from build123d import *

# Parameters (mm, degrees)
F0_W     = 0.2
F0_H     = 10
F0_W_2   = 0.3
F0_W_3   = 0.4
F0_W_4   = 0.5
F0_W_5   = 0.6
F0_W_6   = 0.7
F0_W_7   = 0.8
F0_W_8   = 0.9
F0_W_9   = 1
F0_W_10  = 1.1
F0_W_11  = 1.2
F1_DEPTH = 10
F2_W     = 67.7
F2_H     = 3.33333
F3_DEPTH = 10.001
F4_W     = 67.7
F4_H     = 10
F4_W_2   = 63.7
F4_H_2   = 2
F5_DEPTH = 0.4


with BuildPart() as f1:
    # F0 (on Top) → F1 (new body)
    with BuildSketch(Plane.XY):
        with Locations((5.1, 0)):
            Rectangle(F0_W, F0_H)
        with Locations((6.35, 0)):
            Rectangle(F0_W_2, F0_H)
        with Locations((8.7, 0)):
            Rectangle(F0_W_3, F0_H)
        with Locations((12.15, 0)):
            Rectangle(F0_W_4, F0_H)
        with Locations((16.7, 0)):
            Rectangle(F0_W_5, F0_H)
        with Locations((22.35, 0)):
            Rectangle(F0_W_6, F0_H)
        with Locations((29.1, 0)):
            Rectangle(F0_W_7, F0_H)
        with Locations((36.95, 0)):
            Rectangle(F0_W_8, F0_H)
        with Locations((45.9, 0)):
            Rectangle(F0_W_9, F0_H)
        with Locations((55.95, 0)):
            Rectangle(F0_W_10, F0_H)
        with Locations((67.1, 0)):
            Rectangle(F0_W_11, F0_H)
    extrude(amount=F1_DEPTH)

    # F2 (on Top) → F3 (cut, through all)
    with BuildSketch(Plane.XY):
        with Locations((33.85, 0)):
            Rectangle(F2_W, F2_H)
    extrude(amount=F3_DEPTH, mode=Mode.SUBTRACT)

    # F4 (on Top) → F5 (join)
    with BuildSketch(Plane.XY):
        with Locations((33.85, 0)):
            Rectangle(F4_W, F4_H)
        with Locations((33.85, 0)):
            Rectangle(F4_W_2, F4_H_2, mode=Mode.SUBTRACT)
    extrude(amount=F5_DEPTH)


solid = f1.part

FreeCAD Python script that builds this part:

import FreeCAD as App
import Part
import Sketcher

V = App.Vector
Q = App.Units.Quantity


def add_polygon(sketch, points):
    """Adds a closed chain of lines whose ends are joined by coincident constraints."""
    first, n = sketch.GeometryCount, len(points)
    for a, b in zip(points, points[1:] + points[:1]):
        sketch.addGeometry(Part.LineSegment(App.Vector(*a, 0), App.Vector(*b, 0)), False)
    for i in range(n):
        sketch.addConstraint(Sketcher.Constraint("Coincident", first + i, 2, first + (i + 1) % n, 1))

doc = App.newDocument("Part")
body = doc.addObject("PartDesign::Body", "Body")
body.AllowCompound = True

sketch1 = doc.addObject("Sketcher::SketchObject", "Sketch")
body.addObject(sketch1)
sketch1.AttachmentSupport = (doc.XY_Plane, [""])
sketch1.MapMode = "FlatFace"
add_polygon(sketch1, [(5, 5), (5, -5), (5.2, -5), (5.2, 5)])
add_polygon(sketch1, [(6.2, 5), (6.2, -5), (6.5, -5), (6.5, 5)])
add_polygon(sketch1, [(8.5, 5), (8.5, -5), (8.9, -5), (8.9, 5)])
add_polygon(sketch1, [(11.9, 5), (11.9, -5), (12.4, -5), (12.4, 5)])
add_polygon(sketch1, [(16.4, 5), (16.4, -5), (17, -5), (17, 5)])
add_polygon(sketch1, [(22, 5), (22, -5), (22.7, -5), (22.7, 5)])
add_polygon(sketch1, [(28.7, 5), (28.7, -5), (29.5, -5), (29.5, 5)])
add_polygon(sketch1, [(36.5, 5), (36.5, -5), (37.4, -5), (37.4, 5)])
add_polygon(sketch1, [(45.4, 5), (45.4, -5), (46.4, -5), (46.4, 5)])
add_polygon(sketch1, [(55.4, 5), (55.4, -5), (56.5, -5), (56.5, 5)])
add_polygon(sketch1, [(66.5, 5), (66.5, -5), (67.7, -5), (67.7, 5)])
sketch1.addConstraint([
    Sketcher.Constraint("Vertical", 0),
    Sketcher.Constraint("Horizontal", 1),
    Sketcher.Constraint("Vertical", 2),
    Sketcher.Constraint("Horizontal", 3),
    Sketcher.Constraint("Vertical", 4),
    Sketcher.Constraint("Horizontal", 5),
    Sketcher.Constraint("Vertical", 6),
    Sketcher.Constraint("Horizontal", 7),
    Sketcher.Constraint("Vertical", 8),
    Sketcher.Constraint("Horizontal", 9),
    Sketcher.Constraint("Vertical", 10),
    Sketcher.Constraint("Horizontal", 11),
    Sketcher.Constraint("Vertical", 12),
    Sketcher.Constraint("Horizontal", 13),
    Sketcher.Constraint("Vertical", 14),
    Sketcher.Constraint("Horizontal", 15),
    Sketcher.Constraint("Vertical", 16),
    Sketcher.Constraint("Horizontal", 17),
    Sketcher.Constraint("Vertical", 18),
    Sketcher.Constraint("Horizontal", 19),
    Sketcher.Constraint("Vertical", 20),
    Sketcher.Constraint("Horizontal", 21),
    Sketcher.Constraint("Vertical", 22),
    Sketcher.Constraint("Horizontal", 23),
    Sketcher.Constraint("Vertical", 24),
    Sketcher.Constraint("Horizontal", 25),
    Sketcher.Constraint("Vertical", 26),
    Sketcher.Constraint("Horizontal", 27),
    Sketcher.Constraint("Vertical", 28),
    Sketcher.Constraint("Horizontal", 29),
    Sketcher.Constraint("Vertical", 30),
    Sketcher.Constraint("Horizontal", 31),
    Sketcher.Constraint("Vertical", 32),
    Sketcher.Constraint("Horizontal", 33),
    Sketcher.Constraint("Vertical", 34),
    Sketcher.Constraint("Horizontal", 35),
    Sketcher.Constraint("Vertical", 36),
    Sketcher.Constraint("Horizontal", 37),
    Sketcher.Constraint("Vertical", 38),
    Sketcher.Constraint("Horizontal", 39),
    Sketcher.Constraint("Vertical", 40),
    Sketcher.Constraint("Horizontal", 41),
    Sketcher.Constraint("Vertical", 42),
    Sketcher.Constraint("Horizontal", 43),
    Sketcher.Constraint("Horizontal", 1, 2, 4, 2),
    Sketcher.Constraint("Horizontal", 3, 2, 6, 2),
    Sketcher.Constraint("Horizontal", 5, 2, 8, 2),
    Sketcher.Constraint("Horizontal", 7, 2, 10, 2),
    Sketcher.Constraint("Horizontal", 9, 2, 12, 2),
    Sketcher.Constraint("Horizontal", 11, 2, 14, 2),
    Sketcher.Constraint("Horizontal", 13, 2, 16, 2),
    Sketcher.Constraint("Horizontal", 15, 2, 18, 2),
    Sketcher.Constraint("Horizontal", 17, 2, 20, 2),
    Sketcher.Constraint("Horizontal", 19, 2, 22, 2),
    Sketcher.Constraint("Horizontal", 21, 2, 24, 2),
    Sketcher.Constraint("Horizontal", 23, 2, 26, 2),
    Sketcher.Constraint("Horizontal", 25, 2, 28, 2),
    Sketcher.Constraint("Horizontal", 27, 2, 30, 2),
    Sketcher.Constraint("Horizontal", 29, 2, 32, 2),
    Sketcher.Constraint("Horizontal", 31, 2, 34, 2),
    Sketcher.Constraint("Horizontal", 33, 2, 36, 2),
    Sketcher.Constraint("Horizontal", 35, 2, 38, 2),
    Sketcher.Constraint("Horizontal", 37, 2, 40, 2),
    Sketcher.Constraint("Horizontal", 39, 2, 42, 2),
    Sketcher.Constraint("DistanceX", 33, 1, 33, 2, Q("1 mm")),
    Sketcher.Constraint("DistanceY", 0, 2, 0, 1, Q("10 mm")),
    Sketcher.Constraint("DistanceX", 1, 1, 1, 2, Q("0.2 mm")),
    Sketcher.Constraint("DistanceX", 5, 1, 5, 2, Q("0.3 mm")),
    Sketcher.Constraint("DistanceX", 9, 1, 9, 2, Q("0.4 mm")),
    Sketcher.Constraint("DistanceX", 13, 1, 13, 2, Q("0.5 mm")),
    Sketcher.Constraint("DistanceX", 17, 1, 17, 2, Q("0.6 mm")),
    Sketcher.Constraint("DistanceX", 21, 1, 21, 2, Q("0.7 mm")),
    Sketcher.Constraint("DistanceX", 25, 1, 25, 2, Q("0.8 mm")),
    Sketcher.Constraint("DistanceX", 29, 1, 29, 2, Q("0.9 mm")),
    Sketcher.Constraint("DistanceX", 37, 1, 37, 2, Q("1.1 mm")),
    Sketcher.Constraint("DistanceX", 41, 1, 41, 2, Q("1.2 mm")),
    Sketcher.Constraint("DistanceX", -1, 1, 0, 2, Q("5 mm")),
    Sketcher.Constraint("DistanceY", 0, 2, -1, 1, Q("5 mm")),
    Sketcher.Constraint("DistanceX", -1, 1, 17, 2, Q("17 mm")),
    Sketcher.Constraint("DistanceX", -1, 1, 20, 2, Q("22 mm")),
    Sketcher.Constraint("DistanceX", 1, 2, 4, 2, Q("1 mm")),
    Sketcher.Constraint("DistanceX", 5, 2, 8, 2, Q("2 mm")),
    Sketcher.Constraint("DistanceX", 9, 2, 12, 2, Q("3 mm")),
    Sketcher.Constraint("DistanceX", 21, 2, 24, 2, Q("6 mm")),
    Sketcher.Constraint("DistanceX", 25, 2, 28, 2, Q("7 mm")),
    Sketcher.Constraint("DistanceX", 29, 2, 32, 2, Q("8 mm")),
    Sketcher.Constraint("DistanceX", 33, 2, 36, 2, Q("9 mm")),
    Sketcher.Constraint("DistanceX", 37, 2, 40, 2, Q("10 mm")),
])
pad1 = doc.addObject("PartDesign::Pad", "Pad")
body.addObject(pad1)
pad1.Profile = sketch1
pad1.Length = 10

sketch2 = doc.addObject("Sketcher::SketchObject", "Sketch001")
body.addObject(sketch2)
sketch2.AttachmentSupport = (doc.XY_Plane, [""])
sketch2.MapMode = "FlatFace"
add_polygon(sketch2, [(0, 1.7), (0, -1.7), (67.7, -1.7), (67.7, 1.7)])
sketch2.addConstraint([
    Sketcher.Constraint("Vertical", 0),
    Sketcher.Constraint("Horizontal", 1),
    Sketcher.Constraint("Vertical", 2),
    Sketcher.Constraint("Horizontal", 3),
    Sketcher.Constraint("Symmetric", 0, 2, 3, 2, -1, 1),
    Sketcher.Constraint("DistanceX", 1, 1, 1, 2, Q("67.7 mm")),
    Sketcher.Constraint("DistanceY", 0, 2, 0, 1, Q("3.33333 mm")),
])
pocket1 = doc.addObject("PartDesign::Pocket", "Pocket")
body.addObject(pocket1)
pocket1.Profile = sketch2
pocket1.Type = "ThroughAll"
pocket1.Reversed = True

sketch3 = doc.addObject("Sketcher::SketchObject", "Sketch002")
body.addObject(sketch3)
sketch3.AttachmentSupport = (doc.XY_Plane, [""])
sketch3.MapMode = "FlatFace"
add_polygon(sketch3, [(0, 5), (0, -5), (67.7, -5), (67.7, 5)])
add_polygon(sketch3, [(65.7, -1), (2, -1), (2, 1), (65.7, 1)])
sketch3.addConstraint([
    Sketcher.Constraint("Vertical", 0),
    Sketcher.Constraint("Horizontal", 1),
    Sketcher.Constraint("Vertical", 2),
    Sketcher.Constraint("Horizontal", 3),
    Sketcher.Constraint("Horizontal", 4),
    Sketcher.Constraint("Vertical", 5),
    Sketcher.Constraint("Horizontal", 6),
    Sketcher.Constraint("Vertical", 7),
    Sketcher.Constraint("Symmetric", 0, 2, 3, 2, -1, 1),
    Sketcher.Constraint("DistanceY", 0, 2, 0, 1, Q("10 mm")),
    Sketcher.Constraint("DistanceY", 5, 1, 5, 2, Q("2 mm")),
    Sketcher.Constraint("DistanceX", 1, 1, 1, 2, Q("67.7 mm")),
    Sketcher.Constraint("DistanceX", 4, 2, 4, 1, Q("63.7 mm")),
    Sketcher.Constraint("DistanceX", -1, 1, 4, 2, Q("2 mm")),
    Sketcher.Constraint("DistanceY", 4, 2, -1, 1, Q("1 mm")),
])
pad2 = doc.addObject("PartDesign::Pad", "Pad001")
body.addObject(pad2)
pad2.Profile = sketch3
pad2.Length = 0.4

doc.recompute()
